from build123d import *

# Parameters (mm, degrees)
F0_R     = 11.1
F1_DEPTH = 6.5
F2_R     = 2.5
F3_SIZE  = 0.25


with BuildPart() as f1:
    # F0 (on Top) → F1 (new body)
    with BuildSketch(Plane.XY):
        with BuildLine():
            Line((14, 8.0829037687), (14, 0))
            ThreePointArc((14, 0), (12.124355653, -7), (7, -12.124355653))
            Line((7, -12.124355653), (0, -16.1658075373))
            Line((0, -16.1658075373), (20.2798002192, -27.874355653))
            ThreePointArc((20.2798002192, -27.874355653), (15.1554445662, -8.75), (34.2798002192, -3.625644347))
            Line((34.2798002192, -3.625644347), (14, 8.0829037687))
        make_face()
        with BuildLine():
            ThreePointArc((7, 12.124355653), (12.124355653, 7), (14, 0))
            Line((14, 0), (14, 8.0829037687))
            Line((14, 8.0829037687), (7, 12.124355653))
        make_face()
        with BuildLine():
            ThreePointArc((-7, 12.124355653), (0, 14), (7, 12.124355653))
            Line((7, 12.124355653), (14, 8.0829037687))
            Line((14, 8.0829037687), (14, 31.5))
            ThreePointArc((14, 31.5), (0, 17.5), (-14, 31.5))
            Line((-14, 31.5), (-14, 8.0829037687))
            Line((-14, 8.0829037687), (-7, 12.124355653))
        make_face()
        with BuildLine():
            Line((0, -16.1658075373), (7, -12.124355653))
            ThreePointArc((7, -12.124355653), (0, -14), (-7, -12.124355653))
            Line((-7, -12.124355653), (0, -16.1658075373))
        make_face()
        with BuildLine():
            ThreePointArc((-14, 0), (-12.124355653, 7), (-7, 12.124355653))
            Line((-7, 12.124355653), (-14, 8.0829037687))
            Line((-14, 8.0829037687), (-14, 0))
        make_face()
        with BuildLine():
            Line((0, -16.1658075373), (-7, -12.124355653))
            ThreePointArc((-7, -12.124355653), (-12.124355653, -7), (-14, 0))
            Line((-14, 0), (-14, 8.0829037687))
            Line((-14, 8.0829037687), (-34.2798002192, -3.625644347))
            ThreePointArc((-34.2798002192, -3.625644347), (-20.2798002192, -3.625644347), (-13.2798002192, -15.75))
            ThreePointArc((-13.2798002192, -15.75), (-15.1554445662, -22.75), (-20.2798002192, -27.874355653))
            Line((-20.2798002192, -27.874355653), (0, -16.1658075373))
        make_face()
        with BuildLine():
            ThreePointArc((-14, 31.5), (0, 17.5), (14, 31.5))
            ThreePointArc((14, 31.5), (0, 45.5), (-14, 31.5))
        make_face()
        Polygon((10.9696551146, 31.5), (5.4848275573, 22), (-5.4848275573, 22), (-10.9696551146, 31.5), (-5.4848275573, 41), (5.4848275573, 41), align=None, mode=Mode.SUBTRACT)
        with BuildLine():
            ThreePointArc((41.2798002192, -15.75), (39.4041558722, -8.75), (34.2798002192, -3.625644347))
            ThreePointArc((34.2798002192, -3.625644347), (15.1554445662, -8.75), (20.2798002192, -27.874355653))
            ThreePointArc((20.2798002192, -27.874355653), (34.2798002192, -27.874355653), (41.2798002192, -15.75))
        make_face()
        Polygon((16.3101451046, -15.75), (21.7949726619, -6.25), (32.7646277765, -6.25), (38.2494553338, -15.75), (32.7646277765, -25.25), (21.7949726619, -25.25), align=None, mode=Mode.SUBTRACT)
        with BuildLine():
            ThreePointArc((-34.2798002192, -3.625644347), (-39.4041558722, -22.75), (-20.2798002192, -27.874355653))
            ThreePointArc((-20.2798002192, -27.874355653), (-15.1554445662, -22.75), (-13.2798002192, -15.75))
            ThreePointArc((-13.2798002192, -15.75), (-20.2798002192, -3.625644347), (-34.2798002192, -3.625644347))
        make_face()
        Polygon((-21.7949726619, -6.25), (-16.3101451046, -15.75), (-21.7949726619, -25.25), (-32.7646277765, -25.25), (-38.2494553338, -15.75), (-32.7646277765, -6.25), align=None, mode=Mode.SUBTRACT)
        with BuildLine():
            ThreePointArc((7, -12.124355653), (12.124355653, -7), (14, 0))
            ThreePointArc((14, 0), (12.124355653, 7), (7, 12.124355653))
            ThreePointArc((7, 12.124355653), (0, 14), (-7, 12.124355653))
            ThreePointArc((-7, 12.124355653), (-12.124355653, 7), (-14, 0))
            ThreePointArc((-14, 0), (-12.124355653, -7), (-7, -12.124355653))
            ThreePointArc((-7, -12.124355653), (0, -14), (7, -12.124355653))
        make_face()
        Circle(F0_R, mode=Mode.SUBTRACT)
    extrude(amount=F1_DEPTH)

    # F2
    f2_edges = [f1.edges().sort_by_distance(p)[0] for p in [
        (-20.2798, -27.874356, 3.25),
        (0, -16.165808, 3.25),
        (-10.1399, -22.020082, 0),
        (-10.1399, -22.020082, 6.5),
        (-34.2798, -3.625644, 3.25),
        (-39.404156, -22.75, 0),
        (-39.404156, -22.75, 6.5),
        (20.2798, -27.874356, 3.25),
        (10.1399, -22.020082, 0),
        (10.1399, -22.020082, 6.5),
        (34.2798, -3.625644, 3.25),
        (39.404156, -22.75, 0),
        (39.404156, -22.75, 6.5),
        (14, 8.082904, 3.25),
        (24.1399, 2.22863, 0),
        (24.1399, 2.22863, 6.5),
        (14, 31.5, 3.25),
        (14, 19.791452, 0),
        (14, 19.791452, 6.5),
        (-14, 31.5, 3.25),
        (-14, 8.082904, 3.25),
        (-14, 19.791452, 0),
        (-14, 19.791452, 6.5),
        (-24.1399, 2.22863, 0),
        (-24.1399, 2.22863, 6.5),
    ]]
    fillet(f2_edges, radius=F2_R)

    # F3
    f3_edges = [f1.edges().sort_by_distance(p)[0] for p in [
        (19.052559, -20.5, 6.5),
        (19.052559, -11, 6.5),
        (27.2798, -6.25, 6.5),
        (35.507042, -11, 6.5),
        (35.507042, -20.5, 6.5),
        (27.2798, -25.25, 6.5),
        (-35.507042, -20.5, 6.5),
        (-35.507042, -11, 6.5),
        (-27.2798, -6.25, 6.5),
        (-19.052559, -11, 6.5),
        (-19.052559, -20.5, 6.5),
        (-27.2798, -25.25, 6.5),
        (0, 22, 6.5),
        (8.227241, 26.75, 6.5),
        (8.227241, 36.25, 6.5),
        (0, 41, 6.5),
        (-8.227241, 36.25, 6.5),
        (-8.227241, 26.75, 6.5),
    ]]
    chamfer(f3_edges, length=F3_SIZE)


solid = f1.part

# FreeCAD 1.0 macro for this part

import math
import FreeCAD as App
import Part
import Sketcher

V = App.Vector
Q = App.Units.Quantity


def edges_at(feature, points):
    """Names of the edges that pass closest to the given points."""
    edges = feature.Shape.Edges
    near = lambda p: min(range(len(edges)), key=lambda i: edges[i].distToShape(Part.Vertex(*p))[0])
    return sorted({f"Edge{near(p) + 1}" for p in points})

doc = App.newDocument("Part")
body = doc.addObject("PartDesign::Body", "Body")

# Sketch on XY plane
sketch1 = doc.addObject("Sketcher::SketchObject", "Sketch")
body.addObject(sketch1)
sketch1.AttachmentSupport = (doc.XY_Plane, [""])
sketch1.MapMode = "FlatFace"
sketch1.addGeometry([
    Part.LineSegment(V(0, -16, 0), V(20, -28, 0)),  # 0
    Part.ArcOfCircle(Part.Circle(V(27, -16, 0), V(0, 0, 1), 14), math.radians(-120), math.radians(0)),  # 1
    Part.ArcOfCircle(Part.Circle(V(27, -16, 0), V(0, 0, 1), 14), math.radians(0), math.radians(60)),  # 2
    Part.LineSegment(V(34, -4, 0), V(14, 8, 0)),  # 3
    Part.LineSegment(V(14, 8, 0), V(14, 32, 0)),  # 4
    Part.ArcOfCircle(Part.Circle(V(0, 32, 0), V(0, 0, 1), 14), math.radians(0), math.radians(180)),  # 5
    Part.LineSegment(V(-14, 32, 0), V(-14, 8, 0)),  # 6
    Part.LineSegment(V(-14, 8, 0), V(-34, -4, 0)),  # 7
    Part.ArcOfCircle(Part.Circle(V(-27, -16, 0), V(0, 0, 1), 14), math.radians(120), math.radians(300)),  # 8
    Part.LineSegment(V(-20, -28, 0), V(0, -16, 0)),  # 9
    Part.LineSegment(V(-33, -6, 0), V(-22, -6, 0)),  # 10
    Part.LineSegment(V(-22, -6, 0), V(-16, -16, 0)),  # 11
    Part.LineSegment(V(-16, -16, 0), V(-22, -25, 0)),  # 12
    Part.LineSegment(V(-22, -25, 0), V(-33, -25, 0)),  # 13
    Part.LineSegment(V(-33, -25, 0), V(-38, -16, 0)),  # 14
    Part.LineSegment(V(-38, -16, 0), V(-33, -6, 0)),  # 15
    Part.LineSegment(V(22, -25, 0), V(16, -16, 0)),  # 16
    Part.LineSegment(V(16, -16, 0), V(22, -6, 0)),  # 17
    Part.LineSegment(V(22, -6, 0), V(33, -6, 0)),  # 18
    Part.LineSegment(V(33, -6, 0), V(38, -16, 0)),  # 19
    Part.LineSegment(V(38, -16, 0), V(33, -25, 0)),  # 20
    Part.LineSegment(V(33, -25, 0), V(22, -25, 0)),  # 21
    Part.Circle(V(0, 0, 0), V(0, 0, 1), 11),  # 22
    Part.LineSegment(V(5, 41, 0), V(11, 32, 0)),  # 23
    Part.LineSegment(V(11, 32, 0), V(5, 22, 0)),  # 24
    Part.LineSegment(V(5, 22, 0), V(-5, 22, 0)),  # 25
    Part.LineSegment(V(-5, 22, 0), V(-11, 32, 0)),  # 26
    Part.LineSegment(V(-11, 32, 0), V(-5, 41, 0)),  # 27
    Part.LineSegment(V(-5, 41, 0), V(5, 41, 0)),  # 28
], False)
sketch1.addConstraint([
    Sketcher.Constraint("Tangent", 0, 2, 1, 1),
    Sketcher.Constraint("Tangent", 1, 2, 2, 1),
    Sketcher.Constraint("Tangent", 2, 2, 3, 1),
    Sketcher.Constraint("Coincident", 3, 2, 4, 1),
    Sketcher.Constraint("Tangent", 4, 2, 5, 1),
    Sketcher.Constraint("Tangent", 5, 2, 6, 1),
    Sketcher.Constraint("Coincident", 6, 2, 7, 1),
    Sketcher.Constraint("Tangent", 7, 2, 8, 1),
    Sketcher.Constraint("Tangent", 8, 2, 9, 1),
    Sketcher.Constraint("Coincident", 9, 2, 0, 1),
    Sketcher.Constraint("Coincident", 10, 2, 11, 1),
    Sketcher.Constraint("Coincident", 11, 2, 12, 1),
    Sketcher.Constraint("Coincident", 12, 2, 13, 1),
    Sketcher.Constraint("Coincident", 13, 2, 14, 1),
    Sketcher.Constraint("Coincident", 14, 2, 15, 1),
    Sketcher.Constraint("Coincident", 15, 2, 10, 1),
    Sketcher.Constraint("Coincident", 16, 2, 17, 1),
    Sketcher.Constraint("Coincident", 17, 2, 18, 1),
    Sketcher.Constraint("Coincident", 18, 2, 19, 1),
    Sketcher.Constraint("Coincident", 19, 2, 20, 1),
    Sketcher.Constraint("Coincident", 20, 2, 21, 1),
    Sketcher.Constraint("Coincident", 21, 2, 16, 1),
    Sketcher.Constraint("Coincident", 23, 2, 24, 1),
    Sketcher.Constraint("Coincident", 24, 2, 25, 1),
    Sketcher.Constraint("Coincident", 25, 2, 26, 1),
    Sketcher.Constraint("Coincident", 26, 2, 27, 1),
    Sketcher.Constraint("Coincident", 27, 2, 28, 1),
    Sketcher.Constraint("Coincident", 28, 2, 23, 1),
    Sketcher.Constraint("Vertical", 4),
    Sketcher.Constraint("Vertical", 6),
    Sketcher.Constraint("Horizontal", 10),
    Sketcher.Constraint("Horizontal", 13),
    Sketcher.Constraint("Horizontal", 18),
    Sketcher.Constraint("Horizontal", 21),
    Sketcher.Constraint("Horizontal", 25),
    Sketcher.Constraint("Horizontal", 28),
    Sketcher.Constraint("Coincident", 22, 3, -1, 1),
    Sketcher.Constraint("Equal", 1, 2),
    Sketcher.Constraint("Equal", 2, 5),
    Sketcher.Constraint("Equal", 5, 8),
    Sketcher.Constraint("Symmetric", 1, 3, 8, 3, -2),
    Sketcher.Constraint("Symmetric", 3, 2, 6, 2, -2),
    Sketcher.Constraint("Symmetric", 11, 2, 16, 2, -2),
    Sketcher.Constraint("Symmetric", 10, 2, 17, 2, -2),
    Sketcher.Constraint("Symmetric", 14, 2, 19, 2, -2),
    Sketcher.Constraint("Symmetric", 13, 2, 20, 2, -2),
    Sketcher.Constraint("Symmetric", 23, 2, 26, 2, -2),
    Sketcher.Constraint("PointOnObject", 9, 2, -2),
    Sketcher.Constraint("Parallel", 0, 3),
    Sketcher.Constraint("Perpendicular", 9, 11),
    Sketcher.Constraint("Perpendicular", 3, 12),
    Sketcher.Constraint("Parallel", 11, 14),
    Sketcher.Constraint("Parallel", 12, 15),
    Sketcher.Constraint("Parallel", 14, 16),
    Sketcher.Constraint("Parallel", 16, 19),
    Sketcher.Constraint("Parallel", 19, 23),
    Sketcher.Constraint("Parallel", 20, 24),
    Sketcher.Constraint("Parallel", 23, 26),
    Sketcher.Constraint("Parallel", 24, 27),
    Sketcher.Constraint("Horizontal", 8, 3, 1, 2),
    Sketcher.Constraint("Horizontal", 1, 2, 11, 2),
    Sketcher.Constraint("Horizontal", 11, 2, 14, 2),
    Sketcher.Constraint("Horizontal", 5, 2, 23, 2),
    Sketcher.Constraint("Vertical", 10, 2, 12, 2),
    Sketcher.Constraint("Vertical", 25, 2, 27, 2),
    Sketcher.Constraint("Equal", 21, 25),
    Sketcher.Constraint("Equal", 0, 3),
    Sketcher.Constraint("Equal", 20, 23),
    Sketcher.Constraint("Radius", 1, Q("14 mm")),
    Sketcher.Constraint("Diameter", 22, Q("22.2 mm")),
    Sketcher.Constraint("DistanceY", -1, 1, 24, 2, Q("22 mm")),
    Sketcher.Constraint("DistanceY", -1, 1, 27, 2, Q("41 mm")),
    Sketcher.Constraint("DistanceY", 1, 3, -1, 1, Q("15.75 mm")),
    Sketcher.Constraint("DistanceX", -1, 1, 1, 3, Q("27.2798 mm")),
    Sketcher.Constraint("DistanceX", 10, 1, 10, 2, Q("10.969655 mm")),
    Sketcher.Constraint("DistanceX", 10, 2, -1, 1, Q("21.794973 mm")),
])
pad1 = doc.addObject("PartDesign::Pad", "Pad")
body.addObject(pad1)
pad1.Profile = sketch1
pad1.Length = 6.5
doc.recompute()

fillet = doc.addObject("PartDesign::Fillet", "Fillet")
body.addObject(fillet)
fillet.Base = (pad1, edges_at(pad1, [
    (-20.28, -27.874, 3.25),
    (0, -16.166, 3.25),
    (-10.14, -22.02, 0),
    (-10.14, -22.02, 6.5),
    (-34.28, -3.626, 3.25),
    (-39.404, -22.75, 0),
    (-39.404, -22.75, 6.5),
    (20.28, -27.874, 3.25),
    (10.14, -22.02, 0),
    (10.14, -22.02, 6.5),
    (34.28, -3.626, 3.25),
    (34.28, -27.874, 0),
    (34.28, -27.874, 6.5),
    (14, 8.083, 3.25),
    (24.14, 2.229, 0),
    (24.14, 2.229, 6.5),
    (14, 31.5, 3.25),
    (14, 19.791, 0),
    (14, 19.791, 6.5),
    (-14, 31.5, 3.25),
    (-14, 8.083, 3.25),
    (-14, 19.791, 0),
    (-14, 19.791, 6.5),
    (-24.14, 2.229, 0),
    (-24.14, 2.229, 6.5),
]))
fillet.Radius = 2.5
doc.recompute()

chamfer = doc.addObject("PartDesign::Chamfer", "Chamfer")
body.addObject(chamfer)
chamfer.Base = (fillet, edges_at(fillet, [
    (19.053, -20.5, 6.5),
    (19.053, -11, 6.5),
    (27.28, -6.25, 6.5),
    (35.507, -11, 6.5),
    (35.507, -20.5, 6.5),
    (27.28, -25.25, 6.5),
    (-35.507, -20.5, 6.5),
    (-35.507, -11, 6.5),
    (-27.28, -6.25, 6.5),
    (-19.053, -11, 6.5),
    (-19.053, -20.5, 6.5),
    (-27.28, -25.25, 6.5),
    (0, 22, 6.5),
    (8.227, 26.75, 6.5),
    (8.227, 36.25, 6.5),
    (0, 41, 6.5),
    (-8.227, 36.25, 6.5),
    (-8.227, 26.75, 6.5),
]))
chamfer.Size = 0.25

doc.recompute()
